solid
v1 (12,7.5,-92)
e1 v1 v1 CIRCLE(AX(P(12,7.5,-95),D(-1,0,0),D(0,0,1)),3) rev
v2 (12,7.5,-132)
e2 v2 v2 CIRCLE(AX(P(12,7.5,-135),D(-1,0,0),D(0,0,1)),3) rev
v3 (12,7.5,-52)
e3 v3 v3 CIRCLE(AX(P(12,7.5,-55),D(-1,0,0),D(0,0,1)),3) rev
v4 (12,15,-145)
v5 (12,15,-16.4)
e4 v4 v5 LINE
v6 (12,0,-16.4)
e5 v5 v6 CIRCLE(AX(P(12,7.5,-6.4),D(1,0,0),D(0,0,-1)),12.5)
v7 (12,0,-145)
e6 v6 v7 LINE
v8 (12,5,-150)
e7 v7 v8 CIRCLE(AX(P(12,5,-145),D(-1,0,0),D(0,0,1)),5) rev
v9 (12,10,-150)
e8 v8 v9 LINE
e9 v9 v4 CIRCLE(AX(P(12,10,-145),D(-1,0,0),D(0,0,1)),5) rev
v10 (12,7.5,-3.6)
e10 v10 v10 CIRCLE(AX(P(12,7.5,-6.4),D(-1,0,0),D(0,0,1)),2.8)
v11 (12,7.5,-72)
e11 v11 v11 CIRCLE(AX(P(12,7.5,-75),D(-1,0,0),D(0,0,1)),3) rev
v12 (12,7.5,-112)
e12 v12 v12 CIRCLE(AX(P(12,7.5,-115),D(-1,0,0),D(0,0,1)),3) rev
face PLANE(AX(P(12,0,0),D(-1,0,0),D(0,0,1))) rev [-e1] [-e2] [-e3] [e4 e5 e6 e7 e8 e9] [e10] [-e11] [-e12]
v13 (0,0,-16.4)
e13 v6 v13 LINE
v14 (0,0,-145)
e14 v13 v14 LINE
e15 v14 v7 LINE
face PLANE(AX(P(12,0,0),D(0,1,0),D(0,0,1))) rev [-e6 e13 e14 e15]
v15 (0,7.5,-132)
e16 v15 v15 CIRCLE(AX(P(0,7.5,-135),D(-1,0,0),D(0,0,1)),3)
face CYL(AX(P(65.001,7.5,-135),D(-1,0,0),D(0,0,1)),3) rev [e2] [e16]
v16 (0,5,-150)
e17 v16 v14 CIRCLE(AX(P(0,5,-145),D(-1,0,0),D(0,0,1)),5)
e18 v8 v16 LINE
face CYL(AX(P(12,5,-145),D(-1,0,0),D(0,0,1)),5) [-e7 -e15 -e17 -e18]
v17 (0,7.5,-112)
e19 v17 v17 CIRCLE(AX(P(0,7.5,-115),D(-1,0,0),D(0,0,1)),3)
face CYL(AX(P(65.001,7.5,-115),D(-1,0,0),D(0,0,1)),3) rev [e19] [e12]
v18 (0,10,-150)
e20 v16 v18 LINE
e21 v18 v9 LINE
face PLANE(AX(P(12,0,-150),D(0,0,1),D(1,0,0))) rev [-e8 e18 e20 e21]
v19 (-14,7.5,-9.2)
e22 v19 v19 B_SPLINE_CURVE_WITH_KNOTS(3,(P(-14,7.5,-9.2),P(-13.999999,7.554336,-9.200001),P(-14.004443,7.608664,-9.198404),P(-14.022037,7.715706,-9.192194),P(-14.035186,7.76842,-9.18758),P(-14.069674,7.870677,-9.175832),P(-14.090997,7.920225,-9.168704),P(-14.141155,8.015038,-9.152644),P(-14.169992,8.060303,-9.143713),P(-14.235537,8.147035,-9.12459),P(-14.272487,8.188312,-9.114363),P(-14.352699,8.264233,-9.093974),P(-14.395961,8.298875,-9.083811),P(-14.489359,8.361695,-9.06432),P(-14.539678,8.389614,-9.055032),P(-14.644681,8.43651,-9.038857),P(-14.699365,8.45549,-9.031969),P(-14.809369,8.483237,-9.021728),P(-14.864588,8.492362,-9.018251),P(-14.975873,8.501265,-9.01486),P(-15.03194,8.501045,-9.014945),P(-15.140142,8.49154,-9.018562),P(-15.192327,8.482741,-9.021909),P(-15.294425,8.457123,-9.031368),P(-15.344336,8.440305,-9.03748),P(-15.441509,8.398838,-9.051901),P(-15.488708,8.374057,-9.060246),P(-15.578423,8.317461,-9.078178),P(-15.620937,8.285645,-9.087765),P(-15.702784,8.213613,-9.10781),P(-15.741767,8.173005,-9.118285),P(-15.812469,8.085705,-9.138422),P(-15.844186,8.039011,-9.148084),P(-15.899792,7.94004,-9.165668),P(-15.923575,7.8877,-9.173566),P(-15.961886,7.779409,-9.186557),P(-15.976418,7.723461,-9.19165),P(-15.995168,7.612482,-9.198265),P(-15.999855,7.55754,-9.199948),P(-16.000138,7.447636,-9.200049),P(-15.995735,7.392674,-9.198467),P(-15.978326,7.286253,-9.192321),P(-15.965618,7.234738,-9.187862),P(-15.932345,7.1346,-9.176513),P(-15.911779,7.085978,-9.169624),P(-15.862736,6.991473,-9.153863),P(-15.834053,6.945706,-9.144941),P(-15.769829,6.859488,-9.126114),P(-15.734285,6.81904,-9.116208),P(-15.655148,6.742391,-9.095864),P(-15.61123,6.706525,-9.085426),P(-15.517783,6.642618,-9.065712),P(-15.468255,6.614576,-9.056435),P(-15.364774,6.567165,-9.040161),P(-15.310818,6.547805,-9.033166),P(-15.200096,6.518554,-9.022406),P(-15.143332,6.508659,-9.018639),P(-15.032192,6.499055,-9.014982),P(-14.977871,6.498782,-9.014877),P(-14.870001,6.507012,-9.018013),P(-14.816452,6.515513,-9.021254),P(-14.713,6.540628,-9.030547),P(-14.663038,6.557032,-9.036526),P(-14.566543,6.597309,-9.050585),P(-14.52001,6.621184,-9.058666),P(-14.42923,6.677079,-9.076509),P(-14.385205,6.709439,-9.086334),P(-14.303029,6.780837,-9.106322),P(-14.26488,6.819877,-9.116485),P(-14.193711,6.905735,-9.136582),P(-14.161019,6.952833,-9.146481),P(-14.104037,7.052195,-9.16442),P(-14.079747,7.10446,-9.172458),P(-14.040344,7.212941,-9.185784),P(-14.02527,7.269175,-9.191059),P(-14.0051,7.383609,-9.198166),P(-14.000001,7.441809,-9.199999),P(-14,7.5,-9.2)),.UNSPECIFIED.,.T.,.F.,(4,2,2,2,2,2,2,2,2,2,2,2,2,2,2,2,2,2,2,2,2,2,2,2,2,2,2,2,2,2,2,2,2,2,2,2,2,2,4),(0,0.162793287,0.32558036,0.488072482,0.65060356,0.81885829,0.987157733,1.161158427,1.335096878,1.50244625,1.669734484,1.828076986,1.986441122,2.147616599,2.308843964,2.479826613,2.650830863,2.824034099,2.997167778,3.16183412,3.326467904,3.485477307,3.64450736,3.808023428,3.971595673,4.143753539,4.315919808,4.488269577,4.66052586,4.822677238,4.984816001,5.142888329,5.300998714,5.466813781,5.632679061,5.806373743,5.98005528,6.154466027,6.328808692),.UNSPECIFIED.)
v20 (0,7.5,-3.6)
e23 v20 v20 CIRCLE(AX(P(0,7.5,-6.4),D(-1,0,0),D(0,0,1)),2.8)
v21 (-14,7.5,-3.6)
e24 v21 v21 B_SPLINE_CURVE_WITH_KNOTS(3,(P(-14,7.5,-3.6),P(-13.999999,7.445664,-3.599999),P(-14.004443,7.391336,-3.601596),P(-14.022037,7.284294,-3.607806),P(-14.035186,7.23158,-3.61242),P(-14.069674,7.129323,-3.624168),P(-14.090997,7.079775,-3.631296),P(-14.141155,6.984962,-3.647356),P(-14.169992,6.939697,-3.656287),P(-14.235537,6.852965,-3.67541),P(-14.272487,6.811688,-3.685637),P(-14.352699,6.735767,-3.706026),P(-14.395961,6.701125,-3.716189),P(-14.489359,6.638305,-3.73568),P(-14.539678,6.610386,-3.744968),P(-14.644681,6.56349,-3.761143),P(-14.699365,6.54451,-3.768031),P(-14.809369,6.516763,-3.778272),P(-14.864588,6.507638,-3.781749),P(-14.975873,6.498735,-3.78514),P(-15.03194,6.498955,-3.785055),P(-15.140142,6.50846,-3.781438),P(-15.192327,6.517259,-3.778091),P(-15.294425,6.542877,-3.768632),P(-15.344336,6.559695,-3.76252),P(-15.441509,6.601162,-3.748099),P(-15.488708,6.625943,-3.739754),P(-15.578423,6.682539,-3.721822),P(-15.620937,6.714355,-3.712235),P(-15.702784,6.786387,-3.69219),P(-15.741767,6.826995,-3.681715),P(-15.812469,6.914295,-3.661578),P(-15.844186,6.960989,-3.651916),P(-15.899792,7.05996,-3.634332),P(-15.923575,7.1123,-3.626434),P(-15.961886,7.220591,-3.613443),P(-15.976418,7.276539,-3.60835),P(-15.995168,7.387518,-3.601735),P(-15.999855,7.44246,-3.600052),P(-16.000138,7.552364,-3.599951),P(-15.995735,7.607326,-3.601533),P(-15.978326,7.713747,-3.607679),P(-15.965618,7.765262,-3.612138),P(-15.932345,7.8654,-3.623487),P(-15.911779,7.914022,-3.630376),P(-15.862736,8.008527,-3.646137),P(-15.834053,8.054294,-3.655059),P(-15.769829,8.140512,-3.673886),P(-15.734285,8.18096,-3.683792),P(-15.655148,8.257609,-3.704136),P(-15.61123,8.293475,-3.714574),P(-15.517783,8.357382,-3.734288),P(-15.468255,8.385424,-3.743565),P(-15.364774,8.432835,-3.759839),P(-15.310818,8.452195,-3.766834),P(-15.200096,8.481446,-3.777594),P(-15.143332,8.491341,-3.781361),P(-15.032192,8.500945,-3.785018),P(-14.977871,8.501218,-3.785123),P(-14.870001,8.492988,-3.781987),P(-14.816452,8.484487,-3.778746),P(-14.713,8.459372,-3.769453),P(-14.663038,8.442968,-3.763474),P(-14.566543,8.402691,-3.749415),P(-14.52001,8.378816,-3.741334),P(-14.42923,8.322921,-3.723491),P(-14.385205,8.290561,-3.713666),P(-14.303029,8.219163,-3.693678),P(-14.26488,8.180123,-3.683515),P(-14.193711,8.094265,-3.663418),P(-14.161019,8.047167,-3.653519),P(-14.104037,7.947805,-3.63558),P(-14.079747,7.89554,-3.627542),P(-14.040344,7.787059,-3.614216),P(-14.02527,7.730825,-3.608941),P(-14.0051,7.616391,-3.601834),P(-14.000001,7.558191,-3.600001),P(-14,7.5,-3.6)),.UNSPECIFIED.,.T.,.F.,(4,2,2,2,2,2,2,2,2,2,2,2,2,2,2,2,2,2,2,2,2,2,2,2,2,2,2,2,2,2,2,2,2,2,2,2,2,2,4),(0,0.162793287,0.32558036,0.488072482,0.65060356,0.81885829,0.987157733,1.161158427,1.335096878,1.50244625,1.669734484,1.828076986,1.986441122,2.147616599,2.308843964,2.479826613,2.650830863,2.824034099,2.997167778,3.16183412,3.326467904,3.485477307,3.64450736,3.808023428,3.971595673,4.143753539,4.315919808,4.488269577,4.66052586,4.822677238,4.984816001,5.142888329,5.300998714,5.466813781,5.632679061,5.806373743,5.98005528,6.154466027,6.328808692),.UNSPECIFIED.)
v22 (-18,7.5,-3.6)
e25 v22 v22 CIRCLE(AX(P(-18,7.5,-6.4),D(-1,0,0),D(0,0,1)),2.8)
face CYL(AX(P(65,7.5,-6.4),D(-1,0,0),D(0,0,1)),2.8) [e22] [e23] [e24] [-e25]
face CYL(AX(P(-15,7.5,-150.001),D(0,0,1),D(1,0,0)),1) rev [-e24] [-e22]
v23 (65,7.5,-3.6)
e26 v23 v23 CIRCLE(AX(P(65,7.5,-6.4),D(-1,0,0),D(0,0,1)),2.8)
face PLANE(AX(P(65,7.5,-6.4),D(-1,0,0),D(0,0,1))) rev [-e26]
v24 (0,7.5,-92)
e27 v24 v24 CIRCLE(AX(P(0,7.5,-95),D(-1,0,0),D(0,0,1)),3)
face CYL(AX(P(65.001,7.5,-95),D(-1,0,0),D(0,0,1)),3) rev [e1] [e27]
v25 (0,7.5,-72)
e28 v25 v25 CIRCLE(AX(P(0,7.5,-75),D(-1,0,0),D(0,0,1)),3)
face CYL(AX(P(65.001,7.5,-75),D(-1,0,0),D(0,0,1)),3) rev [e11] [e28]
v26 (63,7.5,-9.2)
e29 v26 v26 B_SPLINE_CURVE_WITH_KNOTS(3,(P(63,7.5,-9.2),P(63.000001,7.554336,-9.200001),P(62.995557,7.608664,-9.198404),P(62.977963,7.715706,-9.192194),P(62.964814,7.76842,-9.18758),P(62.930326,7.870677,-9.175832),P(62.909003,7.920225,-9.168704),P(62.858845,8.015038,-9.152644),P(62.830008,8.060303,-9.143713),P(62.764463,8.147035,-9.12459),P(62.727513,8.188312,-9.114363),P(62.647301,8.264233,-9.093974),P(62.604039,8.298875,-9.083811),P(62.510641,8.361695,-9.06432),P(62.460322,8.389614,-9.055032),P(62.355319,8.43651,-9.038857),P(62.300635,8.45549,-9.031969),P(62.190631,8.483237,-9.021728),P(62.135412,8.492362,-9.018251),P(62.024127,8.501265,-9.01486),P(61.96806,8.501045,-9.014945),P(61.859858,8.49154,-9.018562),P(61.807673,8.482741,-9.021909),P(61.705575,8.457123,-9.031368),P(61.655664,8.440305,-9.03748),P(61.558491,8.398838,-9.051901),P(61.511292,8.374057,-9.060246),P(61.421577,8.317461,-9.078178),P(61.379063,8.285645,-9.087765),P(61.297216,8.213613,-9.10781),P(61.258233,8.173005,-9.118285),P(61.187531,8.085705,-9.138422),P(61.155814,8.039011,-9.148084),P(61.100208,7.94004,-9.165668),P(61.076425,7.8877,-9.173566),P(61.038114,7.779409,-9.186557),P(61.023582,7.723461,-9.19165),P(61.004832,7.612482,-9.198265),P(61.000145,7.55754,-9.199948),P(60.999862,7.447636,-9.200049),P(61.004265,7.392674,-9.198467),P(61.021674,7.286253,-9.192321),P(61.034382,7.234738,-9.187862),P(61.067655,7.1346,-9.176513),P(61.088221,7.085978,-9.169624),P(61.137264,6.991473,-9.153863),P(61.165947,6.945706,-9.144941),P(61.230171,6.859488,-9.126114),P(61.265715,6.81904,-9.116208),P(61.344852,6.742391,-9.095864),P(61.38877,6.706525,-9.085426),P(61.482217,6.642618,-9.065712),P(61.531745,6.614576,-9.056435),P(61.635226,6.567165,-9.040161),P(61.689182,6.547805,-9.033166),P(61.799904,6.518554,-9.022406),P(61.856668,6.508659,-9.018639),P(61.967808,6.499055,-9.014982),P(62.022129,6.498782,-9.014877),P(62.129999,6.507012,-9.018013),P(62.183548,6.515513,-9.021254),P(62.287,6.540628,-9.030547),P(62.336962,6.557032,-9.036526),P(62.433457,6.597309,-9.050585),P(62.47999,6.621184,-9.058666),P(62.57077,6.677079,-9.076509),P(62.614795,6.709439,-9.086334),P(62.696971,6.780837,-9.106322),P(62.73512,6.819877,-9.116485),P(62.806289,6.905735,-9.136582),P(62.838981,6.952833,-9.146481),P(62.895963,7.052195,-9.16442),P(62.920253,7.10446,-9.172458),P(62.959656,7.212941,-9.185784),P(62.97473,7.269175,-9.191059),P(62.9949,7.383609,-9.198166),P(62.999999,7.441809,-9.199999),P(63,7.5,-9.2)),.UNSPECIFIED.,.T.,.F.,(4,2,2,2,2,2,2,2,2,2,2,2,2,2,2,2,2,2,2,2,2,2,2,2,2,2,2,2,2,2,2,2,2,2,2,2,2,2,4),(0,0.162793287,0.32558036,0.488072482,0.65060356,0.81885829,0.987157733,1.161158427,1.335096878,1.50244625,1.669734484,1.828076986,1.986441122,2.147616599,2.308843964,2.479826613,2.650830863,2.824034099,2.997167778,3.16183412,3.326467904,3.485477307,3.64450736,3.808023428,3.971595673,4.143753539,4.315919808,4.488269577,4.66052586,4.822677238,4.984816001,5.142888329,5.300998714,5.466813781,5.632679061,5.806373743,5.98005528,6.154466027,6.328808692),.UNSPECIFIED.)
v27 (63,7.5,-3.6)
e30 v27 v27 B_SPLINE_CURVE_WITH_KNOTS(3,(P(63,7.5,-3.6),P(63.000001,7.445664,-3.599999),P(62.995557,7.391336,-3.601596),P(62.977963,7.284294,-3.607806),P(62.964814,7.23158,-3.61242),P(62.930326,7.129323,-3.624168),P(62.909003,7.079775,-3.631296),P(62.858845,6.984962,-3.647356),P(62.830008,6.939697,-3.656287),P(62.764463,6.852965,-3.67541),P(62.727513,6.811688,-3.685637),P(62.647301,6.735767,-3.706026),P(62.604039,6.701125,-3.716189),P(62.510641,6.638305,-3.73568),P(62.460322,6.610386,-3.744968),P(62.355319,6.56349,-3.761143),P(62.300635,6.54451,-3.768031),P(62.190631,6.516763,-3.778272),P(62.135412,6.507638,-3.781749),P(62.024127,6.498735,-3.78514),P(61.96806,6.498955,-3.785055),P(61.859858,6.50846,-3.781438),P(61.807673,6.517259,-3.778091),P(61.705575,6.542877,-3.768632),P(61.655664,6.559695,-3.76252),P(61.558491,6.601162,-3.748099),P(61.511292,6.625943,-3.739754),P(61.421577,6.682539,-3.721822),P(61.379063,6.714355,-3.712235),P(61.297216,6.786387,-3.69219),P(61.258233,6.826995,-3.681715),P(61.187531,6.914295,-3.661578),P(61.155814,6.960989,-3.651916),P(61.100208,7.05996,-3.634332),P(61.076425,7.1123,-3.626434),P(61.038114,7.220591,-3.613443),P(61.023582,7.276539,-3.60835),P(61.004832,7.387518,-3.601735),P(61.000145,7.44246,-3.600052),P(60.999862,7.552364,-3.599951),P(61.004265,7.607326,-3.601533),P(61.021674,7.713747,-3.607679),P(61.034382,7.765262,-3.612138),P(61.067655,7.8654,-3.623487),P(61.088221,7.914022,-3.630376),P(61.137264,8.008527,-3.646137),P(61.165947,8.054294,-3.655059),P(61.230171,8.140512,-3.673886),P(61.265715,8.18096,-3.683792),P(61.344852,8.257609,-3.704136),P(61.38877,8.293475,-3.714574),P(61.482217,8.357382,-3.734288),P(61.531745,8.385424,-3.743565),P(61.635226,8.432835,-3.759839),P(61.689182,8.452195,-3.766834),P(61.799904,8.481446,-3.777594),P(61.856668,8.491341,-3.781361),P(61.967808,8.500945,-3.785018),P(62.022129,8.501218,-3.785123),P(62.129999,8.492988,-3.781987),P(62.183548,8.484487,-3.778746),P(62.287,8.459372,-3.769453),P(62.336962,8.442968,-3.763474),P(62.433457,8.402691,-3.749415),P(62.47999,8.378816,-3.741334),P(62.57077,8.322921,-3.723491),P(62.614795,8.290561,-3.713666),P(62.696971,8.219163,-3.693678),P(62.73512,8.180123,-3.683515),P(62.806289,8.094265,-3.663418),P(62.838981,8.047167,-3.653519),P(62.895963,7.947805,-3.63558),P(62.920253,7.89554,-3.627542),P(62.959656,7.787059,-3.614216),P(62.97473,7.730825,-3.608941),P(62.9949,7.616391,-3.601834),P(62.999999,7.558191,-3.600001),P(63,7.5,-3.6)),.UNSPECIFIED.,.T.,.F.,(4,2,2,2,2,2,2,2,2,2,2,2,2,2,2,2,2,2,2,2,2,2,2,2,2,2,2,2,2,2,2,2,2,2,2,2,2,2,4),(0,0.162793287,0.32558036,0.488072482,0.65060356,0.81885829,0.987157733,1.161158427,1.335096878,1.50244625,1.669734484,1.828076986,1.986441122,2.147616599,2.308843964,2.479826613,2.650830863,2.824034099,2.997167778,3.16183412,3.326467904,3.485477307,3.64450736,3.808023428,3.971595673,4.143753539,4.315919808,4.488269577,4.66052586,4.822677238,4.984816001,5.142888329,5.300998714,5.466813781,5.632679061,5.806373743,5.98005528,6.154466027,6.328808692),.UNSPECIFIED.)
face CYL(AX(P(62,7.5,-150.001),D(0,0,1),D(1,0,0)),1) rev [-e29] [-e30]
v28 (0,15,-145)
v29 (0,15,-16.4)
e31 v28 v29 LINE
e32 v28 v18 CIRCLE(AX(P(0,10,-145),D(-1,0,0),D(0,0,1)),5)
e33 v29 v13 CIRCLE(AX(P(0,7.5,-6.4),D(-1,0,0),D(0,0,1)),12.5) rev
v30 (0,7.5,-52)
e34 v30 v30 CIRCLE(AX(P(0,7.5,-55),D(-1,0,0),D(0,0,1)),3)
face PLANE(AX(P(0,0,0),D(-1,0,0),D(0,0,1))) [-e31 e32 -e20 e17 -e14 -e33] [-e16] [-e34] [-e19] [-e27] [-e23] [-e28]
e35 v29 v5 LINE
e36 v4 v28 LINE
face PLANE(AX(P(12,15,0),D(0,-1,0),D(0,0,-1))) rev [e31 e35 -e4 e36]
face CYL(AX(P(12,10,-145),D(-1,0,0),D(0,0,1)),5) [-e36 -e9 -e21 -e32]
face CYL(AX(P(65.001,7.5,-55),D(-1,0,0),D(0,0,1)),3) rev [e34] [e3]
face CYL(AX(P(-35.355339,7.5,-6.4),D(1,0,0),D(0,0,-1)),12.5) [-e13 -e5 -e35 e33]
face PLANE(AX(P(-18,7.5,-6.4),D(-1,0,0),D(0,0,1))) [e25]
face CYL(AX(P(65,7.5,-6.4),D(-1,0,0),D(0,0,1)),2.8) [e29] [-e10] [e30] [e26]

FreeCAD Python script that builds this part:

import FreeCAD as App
import Part
import Sketcher

V = App.Vector
Q = App.Units.Quantity


def edges_at(feature, points):
    """Names of the edges that pass closest to the given points."""
    edges = feature.Shape.Edges
    near = lambda p: min(range(len(edges)), key=lambda i: edges[i].distToShape(Part.Vertex(*p))[0])
    return sorted({f"Edge{near(p) + 1}" for p in points})

doc = App.newDocument("Part")
body = doc.addObject("PartDesign::Body", "Body")

sketch1 = body.newObject("Sketcher::SketchObject", "Sketch")
sketch1.AttachmentSupport = (doc.getObject("YZ_Plane"), [""])
sketch1.MapMode = "FlatFace"
sketch1.addGeometry(Part.LineSegment(V(15, 0, 0), V(0, 0, 0)), False)
sketch1.addGeometry(Part.LineSegment(V(0, 0, 0), V(0, -150, 0)), False)
sketch1.addGeometry(Part.LineSegment(V(0, -150, 0), V(15, -150, 0)), False)
sketch1.addGeometry(Part.LineSegment(V(15, -150, 0), V(15, 0, 0)), False)
sketch1.addConstraint(Sketcher.Constraint("Coincident", 0, 2, 1, 1))
sketch1.addConstraint(Sketcher.Constraint("Coincident", 1, 2, 2, 1))
sketch1.addConstraint(Sketcher.Constraint("Coincident", 2, 2, 3, 1))
sketch1.addConstraint(Sketcher.Constraint("Coincident", 3, 2, 0, 1))
sketch1.addConstraint(Sketcher.Constraint("Horizontal", 0))
sketch1.addConstraint(Sketcher.Constraint("Vertical", 1))
sketch1.addConstraint(Sketcher.Constraint("Horizontal", 2))
sketch1.addConstraint(Sketcher.Constraint("Vertical", 3))
sketch1.addConstraint(Sketcher.Constraint("Coincident", 0, 2, -1, 1))
sketch1.addConstraint(Sketcher.Constraint("DistanceX", 0, 2, 0, 1, Q("15 mm")))
sketch1.addConstraint(Sketcher.Constraint("DistanceY", 1, 2, 1, 1, Q("150 mm")))
pad1 = body.newObject("PartDesign::Pad", "Pad")
pad1.Profile = sketch1
pad1.Length = 12
doc.recompute()

fillet = body.newObject("PartDesign::Fillet", "Fillet")
fillet.Base = (pad1, edges_at(pad1, [
    (6, 15, 0),
    (6, 15, -150),
    (6, 0, -150),
    (6, 0, 0),
]))
fillet.Radius = 5

sketch2 = body.newObject("Sketcher::SketchObject", "Sketch001")
sketch2.AttachmentSupport = (doc.getObject("YZ_Plane"), [""])
sketch2.MapMode = "FlatFace"
sketch2.AttachmentOffset = App.Placement(V(0, 0, 12), App.Rotation())
sketch2.addGeometry(Part.Circle(V(8, -6, 0), V(0, 0, 1), 12), False)
sketch2.addConstraint(Sketcher.Constraint("Diameter", 0, Q("25 mm")))
sketch2.addConstraint(Sketcher.Constraint("DistanceX", -1, 1, 0, 3, Q("7.5 mm")))
sketch2.addConstraint(Sketcher.Constraint("DistanceY", 0, 3, -1, 1, Q("6.4 mm")))
pad2 = body.newObject("PartDesign::Pad", "Pad001")
pad2.Profile = sketch2
pad2.Length = 12
pad2.Reversed = True

sketch3 = body.newObject("Sketcher::SketchObject", "Sketch002")
sketch3.AttachmentSupport = (doc.getObject("YZ_Plane"), [""])
sketch3.MapMode = "FlatFace"
sketch3.addGeometry(Part.Circle(V(7.5, -6.4, 0), V(0, 0, 1), 2.8), False)
sketch3.addConstraint(Sketcher.Constraint("Diameter", 0, Q("5.6 mm")))
sketch3.addConstraint(Sketcher.Constraint("DistanceX", -1, 1, 0, 3, Q("7.5 mm")))
sketch3.addConstraint(Sketcher.Constraint("DistanceY", 0, 3, -1, 1, Q("6.4 mm")))
pad3 = body.newObject("PartDesign::Pad", "Pad002")
pad3.Profile = sketch3
pad3.Type = "TwoLengths"
pad3.Length = 18
pad3.Length2 = 65
pad3.Reversed = True

sketch4 = body.newObject("Sketcher::SketchObject", "Sketch003")
sketch4.AttachmentSupport = (doc.getObject("XY_Plane"), [""])
sketch4.MapMode = "FlatFace"
sketch4.addGeometry(Part.Circle(V(-15, 7.5, 0), V(0, 0, 1), 1), False)
sketch4.addConstraint(Sketcher.Constraint("Diameter", 0, Q("2 mm")))
sketch4.addConstraint(Sketcher.Constraint("DistanceX", 0, 3, -1, 1, Q("15 mm")))
sketch4.addConstraint(Sketcher.Constraint("DistanceY", -1, 1, 0, 3, Q("7.5 mm")))
pocket1 = body.newObject("PartDesign::Pocket", "Pocket")
pocket1.Profile = sketch4
pocket1.Length = 9.2

sketch5 = body.newObject("Sketcher::SketchObject", "Sketch004")
sketch5.AttachmentSupport = (doc.getObject("XY_Plane"), [""])
sketch5.MapMode = "FlatFace"
sketch5.addGeometry(Part.Circle(V(62, 7.5, 0), V(0, 0, 1), 1), False)
sketch5.addConstraint(Sketcher.Constraint("Diameter", 0, Q("2 mm")))
sketch5.addConstraint(Sketcher.Constraint("DistanceX", -1, 1, 0, 3, Q("62 mm")))
sketch5.addConstraint(Sketcher.Constraint("DistanceY", -1, 1, 0, 3, Q("7.5 mm")))
pocket2 = body.newObject("PartDesign::Pocket", "Pocket001")
pocket2.Profile = sketch5
pocket2.Length = 9.2

sketch6 = body.newObject("Sketcher::SketchObject", "Sketch005")
sketch6.AttachmentSupport = (doc.getObject("YZ_Plane"), [""])
sketch6.MapMode = "FlatFace"
sketch6.addGeometry(Part.Circle(V(7.5, -135, 0), V(0, 0, 1), 3), False)
sketch6.addConstraint(Sketcher.Constraint("Diameter", 0, Q("6 mm")))
sketch6.addConstraint(Sketcher.Constraint("DistanceY", 0, 3, -1, 1, Q("135 mm")))
sketch6.addConstraint(Sketcher.Constraint("DistanceX", -1, 1, 0, 3, Q("7.5 mm")))
pocket3 = body.newObject("PartDesign::Pocket", "Pocket002")
pocket3.Profile = sketch6
pocket3.Type = "UpToFirst"
pocket3.Reversed = True

sketch7 = body.newObject("Sketcher::SketchObject", "Sketch006")
sketch7.AttachmentSupport = (doc.getObject("YZ_Plane"), [""])
sketch7.MapMode = "FlatFace"
sketch7.addGeometry(Part.Circle(V(7.5, -115, 0), V(0, 0, 1), 3), False)
sketch7.addConstraint(Sketcher.Constraint("Diameter", 0, Q("6 mm")))
sketch7.addConstraint(Sketcher.Constraint("DistanceY", 0, 3, -1, 1, Q("115 mm")))
sketch7.addConstraint(Sketcher.Constraint("DistanceX", -1, 1, 0, 3, Q("7.5 mm")))
pocket4 = body.newObject("PartDesign::Pocket", "Pocket003")
pocket4.Profile = sketch7
pocket4.Type = "UpToFirst"
pocket4.Reversed = True

sketch8 = body.newObject("Sketcher::SketchObject", "Sketch007")
sketch8.AttachmentSupport = (doc.getObject("YZ_Plane"), [""])
sketch8.MapMode = "FlatFace"
sketch8.addGeometry(Part.Circle(V(7.5, -95, 0), V(0, 0, 1), 3), False)
sketch8.addConstraint(Sketcher.Constraint("Diameter", 0, Q("6 mm")))
sketch8.addConstraint(Sketcher.Constraint("DistanceY", 0, 3, -1, 1, Q("95 mm")))
sketch8.addConstraint(Sketcher.Constraint("DistanceX", -1, 1, 0, 3, Q("7.5 mm")))
pocket5 = body.newObject("PartDesign::Pocket", "Pocket004")
pocket5.Profile = sketch8
pocket5.Type = "UpToFirst"
pocket5.Reversed = True

sketch9 = body.newObject("Sketcher::SketchObject", "Sketch008")
sketch9.AttachmentSupport = (doc.getObject("YZ_Plane"), [""])
sketch9.MapMode = "FlatFace"
sketch9.addGeometry(Part.Circle(V(7.5, -75, 0), V(0, 0, 1), 3), False)
sketch9.addConstraint(Sketcher.Constraint("Diameter", 0, Q("6 mm")))
sketch9.addConstraint(Sketcher.Constraint("DistanceY", 0, 3, -1, 1, Q("75 mm")))
sketch9.addConstraint(Sketcher.Constraint("DistanceX", -1, 1, 0, 3, Q("7.5 mm")))
pocket6 = body.newObject("PartDesign::Pocket", "Pocket005")
pocket6.Profile = sketch9
pocket6.Type = "UpToFirst"
pocket6.Reversed = True

sketch10 = body.newObject("Sketcher::SketchObject", "Sketch009")
sketch10.AttachmentSupport = (doc.getObject("YZ_Plane"), [""])
sketch10.MapMode = "FlatFace"
sketch10.addGeometry(Part.Circle(V(7.5, -55, 0), V(0, 0, 1), 3), False)
sketch10.addConstraint(Sketcher.Constraint("Diameter", 0, Q("6 mm")))
sketch10.addConstraint(Sketcher.Constraint("DistanceY", 0, 3, -1, 1, Q("55 mm")))
sketch10.addConstraint(Sketcher.Constraint("DistanceX", -1, 1, 0, 3, Q("7.5 mm")))
pocket7 = body.newObject("PartDesign::Pocket", "Pocket006")
pocket7.Profile = sketch10
pocket7.Type = "UpToFirst"
pocket7.Reversed = True

doc.recompute()
